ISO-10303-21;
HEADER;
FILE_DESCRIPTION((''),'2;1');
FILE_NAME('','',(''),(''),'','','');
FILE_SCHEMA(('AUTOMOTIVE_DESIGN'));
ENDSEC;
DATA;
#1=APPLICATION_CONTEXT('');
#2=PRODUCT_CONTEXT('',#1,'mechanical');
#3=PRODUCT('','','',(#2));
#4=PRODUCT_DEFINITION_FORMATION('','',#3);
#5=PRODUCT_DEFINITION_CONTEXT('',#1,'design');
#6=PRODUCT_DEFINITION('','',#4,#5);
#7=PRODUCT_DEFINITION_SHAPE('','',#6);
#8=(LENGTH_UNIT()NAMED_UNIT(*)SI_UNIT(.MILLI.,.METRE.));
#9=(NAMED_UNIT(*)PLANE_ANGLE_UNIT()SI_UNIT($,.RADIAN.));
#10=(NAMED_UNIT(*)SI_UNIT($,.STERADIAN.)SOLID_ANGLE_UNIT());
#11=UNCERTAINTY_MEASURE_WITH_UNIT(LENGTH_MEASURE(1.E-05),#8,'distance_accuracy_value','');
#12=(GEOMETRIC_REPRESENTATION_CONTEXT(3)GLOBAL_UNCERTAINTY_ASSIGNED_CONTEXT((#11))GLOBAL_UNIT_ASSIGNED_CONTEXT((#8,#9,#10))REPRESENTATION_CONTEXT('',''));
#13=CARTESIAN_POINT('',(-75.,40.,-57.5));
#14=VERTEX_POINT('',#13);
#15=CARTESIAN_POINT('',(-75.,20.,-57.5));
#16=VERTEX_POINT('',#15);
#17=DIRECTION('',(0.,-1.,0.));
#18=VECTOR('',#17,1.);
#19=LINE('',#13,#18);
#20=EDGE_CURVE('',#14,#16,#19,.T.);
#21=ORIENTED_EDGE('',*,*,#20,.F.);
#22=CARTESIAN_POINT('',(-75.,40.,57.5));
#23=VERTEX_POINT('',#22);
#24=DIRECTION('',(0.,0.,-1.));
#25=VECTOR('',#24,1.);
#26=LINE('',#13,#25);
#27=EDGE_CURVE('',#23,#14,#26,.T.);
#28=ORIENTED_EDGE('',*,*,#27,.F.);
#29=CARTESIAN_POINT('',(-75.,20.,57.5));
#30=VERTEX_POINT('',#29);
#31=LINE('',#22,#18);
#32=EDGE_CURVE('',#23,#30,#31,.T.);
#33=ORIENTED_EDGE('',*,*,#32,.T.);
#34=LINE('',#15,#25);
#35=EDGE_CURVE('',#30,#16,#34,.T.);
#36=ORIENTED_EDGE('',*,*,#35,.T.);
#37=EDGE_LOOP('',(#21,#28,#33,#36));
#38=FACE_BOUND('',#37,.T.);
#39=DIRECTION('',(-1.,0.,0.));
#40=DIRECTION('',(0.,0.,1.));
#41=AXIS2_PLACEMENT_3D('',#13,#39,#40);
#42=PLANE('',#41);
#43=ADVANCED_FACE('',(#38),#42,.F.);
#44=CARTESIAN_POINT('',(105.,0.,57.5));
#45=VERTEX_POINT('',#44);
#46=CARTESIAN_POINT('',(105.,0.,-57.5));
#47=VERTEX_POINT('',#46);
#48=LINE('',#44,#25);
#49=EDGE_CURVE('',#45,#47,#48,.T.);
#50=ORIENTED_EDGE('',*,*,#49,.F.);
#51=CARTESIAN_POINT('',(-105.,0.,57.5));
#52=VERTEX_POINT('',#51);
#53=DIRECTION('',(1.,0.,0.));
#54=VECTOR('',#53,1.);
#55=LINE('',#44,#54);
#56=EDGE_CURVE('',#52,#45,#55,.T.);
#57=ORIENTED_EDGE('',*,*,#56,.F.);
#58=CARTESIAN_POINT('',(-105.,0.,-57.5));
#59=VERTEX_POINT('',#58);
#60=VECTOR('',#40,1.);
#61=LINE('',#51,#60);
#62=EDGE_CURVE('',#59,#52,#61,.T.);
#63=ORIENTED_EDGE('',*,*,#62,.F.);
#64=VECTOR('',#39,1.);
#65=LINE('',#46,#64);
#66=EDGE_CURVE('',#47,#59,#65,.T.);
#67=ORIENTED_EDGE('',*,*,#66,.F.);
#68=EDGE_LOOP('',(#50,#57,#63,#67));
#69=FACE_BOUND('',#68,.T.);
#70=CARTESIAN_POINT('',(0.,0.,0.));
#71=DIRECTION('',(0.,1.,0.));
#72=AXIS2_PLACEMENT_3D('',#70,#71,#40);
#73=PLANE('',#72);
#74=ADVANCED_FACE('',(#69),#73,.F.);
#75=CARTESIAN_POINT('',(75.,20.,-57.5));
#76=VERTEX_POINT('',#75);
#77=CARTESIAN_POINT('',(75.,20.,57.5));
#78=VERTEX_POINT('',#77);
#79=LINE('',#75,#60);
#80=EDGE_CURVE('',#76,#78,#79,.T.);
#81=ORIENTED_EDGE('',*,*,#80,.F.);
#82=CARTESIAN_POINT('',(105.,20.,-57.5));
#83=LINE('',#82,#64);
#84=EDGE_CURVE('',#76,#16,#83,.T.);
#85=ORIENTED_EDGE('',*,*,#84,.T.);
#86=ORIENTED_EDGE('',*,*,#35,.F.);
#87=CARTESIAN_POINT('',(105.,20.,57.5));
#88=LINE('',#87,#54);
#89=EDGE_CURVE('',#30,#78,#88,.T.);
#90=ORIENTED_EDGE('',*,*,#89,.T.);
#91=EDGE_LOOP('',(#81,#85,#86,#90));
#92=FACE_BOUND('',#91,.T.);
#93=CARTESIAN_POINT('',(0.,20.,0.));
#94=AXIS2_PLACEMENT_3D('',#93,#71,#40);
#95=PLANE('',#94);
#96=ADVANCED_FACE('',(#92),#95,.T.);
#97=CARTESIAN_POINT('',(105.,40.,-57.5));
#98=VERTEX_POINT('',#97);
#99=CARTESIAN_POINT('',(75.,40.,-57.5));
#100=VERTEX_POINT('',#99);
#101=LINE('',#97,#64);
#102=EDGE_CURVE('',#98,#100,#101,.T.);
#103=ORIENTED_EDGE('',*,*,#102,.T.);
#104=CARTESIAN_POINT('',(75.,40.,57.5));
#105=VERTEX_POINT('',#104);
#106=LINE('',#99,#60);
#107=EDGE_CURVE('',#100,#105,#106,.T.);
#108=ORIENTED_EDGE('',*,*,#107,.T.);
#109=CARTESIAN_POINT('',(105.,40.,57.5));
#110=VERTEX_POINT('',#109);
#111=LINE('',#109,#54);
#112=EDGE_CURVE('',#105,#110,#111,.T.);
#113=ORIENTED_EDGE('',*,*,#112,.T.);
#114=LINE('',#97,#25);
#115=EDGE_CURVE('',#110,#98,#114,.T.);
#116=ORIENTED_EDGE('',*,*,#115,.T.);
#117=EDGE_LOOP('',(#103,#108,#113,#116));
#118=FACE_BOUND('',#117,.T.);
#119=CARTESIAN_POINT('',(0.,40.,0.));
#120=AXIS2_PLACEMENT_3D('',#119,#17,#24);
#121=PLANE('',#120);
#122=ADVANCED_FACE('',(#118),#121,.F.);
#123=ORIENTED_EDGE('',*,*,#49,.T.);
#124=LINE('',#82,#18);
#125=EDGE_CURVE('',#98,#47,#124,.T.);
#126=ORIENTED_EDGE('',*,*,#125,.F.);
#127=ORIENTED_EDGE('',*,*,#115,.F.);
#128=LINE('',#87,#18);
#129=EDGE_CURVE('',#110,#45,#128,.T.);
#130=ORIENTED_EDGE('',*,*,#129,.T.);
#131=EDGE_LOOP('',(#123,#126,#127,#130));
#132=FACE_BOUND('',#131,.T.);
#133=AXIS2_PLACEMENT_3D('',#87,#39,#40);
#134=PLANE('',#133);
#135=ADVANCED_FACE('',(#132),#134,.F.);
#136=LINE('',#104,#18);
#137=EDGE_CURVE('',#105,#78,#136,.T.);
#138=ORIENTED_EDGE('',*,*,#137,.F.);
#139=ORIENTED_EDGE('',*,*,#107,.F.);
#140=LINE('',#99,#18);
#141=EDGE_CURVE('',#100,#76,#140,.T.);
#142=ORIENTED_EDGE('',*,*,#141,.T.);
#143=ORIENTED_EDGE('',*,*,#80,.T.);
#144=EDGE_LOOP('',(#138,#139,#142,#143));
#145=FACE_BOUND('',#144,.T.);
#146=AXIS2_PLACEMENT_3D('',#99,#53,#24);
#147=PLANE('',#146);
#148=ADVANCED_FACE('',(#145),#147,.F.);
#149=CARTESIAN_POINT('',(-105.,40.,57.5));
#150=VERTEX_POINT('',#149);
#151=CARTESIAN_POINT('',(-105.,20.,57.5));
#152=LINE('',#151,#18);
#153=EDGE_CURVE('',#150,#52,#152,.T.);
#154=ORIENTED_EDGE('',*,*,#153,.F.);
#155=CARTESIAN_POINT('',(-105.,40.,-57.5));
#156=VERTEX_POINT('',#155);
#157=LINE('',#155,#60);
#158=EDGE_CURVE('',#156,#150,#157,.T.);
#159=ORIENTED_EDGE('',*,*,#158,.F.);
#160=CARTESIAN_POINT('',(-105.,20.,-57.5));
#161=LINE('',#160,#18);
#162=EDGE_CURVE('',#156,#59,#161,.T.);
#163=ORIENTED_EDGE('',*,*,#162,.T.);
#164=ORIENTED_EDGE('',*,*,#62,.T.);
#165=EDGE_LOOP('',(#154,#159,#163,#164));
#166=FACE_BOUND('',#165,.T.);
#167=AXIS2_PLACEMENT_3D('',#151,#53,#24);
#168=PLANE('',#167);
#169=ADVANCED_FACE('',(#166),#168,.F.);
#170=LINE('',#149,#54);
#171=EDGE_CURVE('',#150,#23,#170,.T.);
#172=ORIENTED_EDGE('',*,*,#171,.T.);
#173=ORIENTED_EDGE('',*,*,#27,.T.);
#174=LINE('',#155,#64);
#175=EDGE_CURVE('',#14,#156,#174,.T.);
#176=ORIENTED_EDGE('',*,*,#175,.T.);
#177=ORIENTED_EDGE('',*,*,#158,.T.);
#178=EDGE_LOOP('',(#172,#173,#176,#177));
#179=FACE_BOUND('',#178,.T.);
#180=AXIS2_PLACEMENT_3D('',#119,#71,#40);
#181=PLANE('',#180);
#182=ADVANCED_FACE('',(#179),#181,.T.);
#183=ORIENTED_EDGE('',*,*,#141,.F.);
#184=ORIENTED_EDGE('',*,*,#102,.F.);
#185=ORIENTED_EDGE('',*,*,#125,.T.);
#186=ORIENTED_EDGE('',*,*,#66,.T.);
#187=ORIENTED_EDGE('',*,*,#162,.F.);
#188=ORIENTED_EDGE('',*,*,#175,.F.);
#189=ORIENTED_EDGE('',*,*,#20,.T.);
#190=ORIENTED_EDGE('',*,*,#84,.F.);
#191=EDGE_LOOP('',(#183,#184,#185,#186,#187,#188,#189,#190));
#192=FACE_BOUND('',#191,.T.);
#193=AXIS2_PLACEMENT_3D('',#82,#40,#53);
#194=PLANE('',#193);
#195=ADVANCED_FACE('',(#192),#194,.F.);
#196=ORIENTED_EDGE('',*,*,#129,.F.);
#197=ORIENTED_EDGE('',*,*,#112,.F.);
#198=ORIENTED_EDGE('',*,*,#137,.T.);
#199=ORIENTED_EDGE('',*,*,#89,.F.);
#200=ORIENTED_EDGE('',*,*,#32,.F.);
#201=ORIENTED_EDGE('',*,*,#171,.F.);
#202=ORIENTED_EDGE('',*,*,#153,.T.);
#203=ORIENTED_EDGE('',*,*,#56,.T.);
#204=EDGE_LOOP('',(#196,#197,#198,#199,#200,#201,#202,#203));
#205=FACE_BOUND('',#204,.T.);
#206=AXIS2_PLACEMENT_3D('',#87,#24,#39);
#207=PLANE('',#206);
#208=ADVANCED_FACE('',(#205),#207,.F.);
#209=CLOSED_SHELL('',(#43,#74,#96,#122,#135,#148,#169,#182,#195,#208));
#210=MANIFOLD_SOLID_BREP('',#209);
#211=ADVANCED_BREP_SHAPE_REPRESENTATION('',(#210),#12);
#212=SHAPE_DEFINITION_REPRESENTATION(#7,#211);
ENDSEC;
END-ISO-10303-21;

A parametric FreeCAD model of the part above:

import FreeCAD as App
import Part
import Sketcher

V = App.Vector
Q = App.Units.Quantity


def add_polygon(sketch, points):
    """Adds a closed chain of lines whose ends are joined by coincident constraints."""
    first, n = sketch.GeometryCount, len(points)
    for a, b in zip(points, points[1:] + points[:1]):
        sketch.addGeometry(Part.LineSegment(App.Vector(*a, 0), App.Vector(*b, 0)), False)
    for i in range(n):
        sketch.addConstraint(Sketcher.Constraint("Coincident", first + i, 2, first + (i + 1) % n, 1))

doc = App.newDocument("Part")
body = doc.addObject("PartDesign::Body", "Body")

sketch1 = body.newObject("Sketcher::SketchObject", "Sketch")
sketch1.AttachmentSupport = (doc.getObject("XZ_Plane"), [""])
sketch1.MapMode = "FlatFace"
add_polygon(sketch1, [(-105, -57.5), (-105, 57.5), (105, 57.5), (105, -57.5)])
sketch1.addConstraint(Sketcher.Constraint("Vertical", 0))
sketch1.addConstraint(Sketcher.Constraint("Horizontal", 1))
sketch1.addConstraint(Sketcher.Constraint("Vertical", 2))
sketch1.addConstraint(Sketcher.Constraint("Horizontal", 3))
sketch1.addConstraint(Sketcher.Constraint("Symmetric", 0, 2, 2, 2, -1, 1))
sketch1.addConstraint(Sketcher.Constraint("DistanceX", 1, 1, 1, 2, Q("210 mm")))
sketch1.addConstraint(Sketcher.Constraint("DistanceY", 0, 1, 0, 2, Q("115 mm")))
pad1 = body.newObject("PartDesign::Pad", "Pad")
pad1.Profile = sketch1
pad1.Length = 20
pad1.Reversed = True

sketch2 = body.newObject("Sketcher::SketchObject", "Sketch001")
sketch2.AttachmentSupport = (doc.getObject("XZ_Plane"), [""])
sketch2.MapMode = "FlatFace"
sketch2.AttachmentOffset = App.Placement(V(0, 0, -20), App.Rotation())
add_polygon(sketch2, [(-105, -57.5), (-105, 57.5), (-75, 57.5), (-75, -57.5)])
add_polygon(sketch2, [(75, -57.5), (75, 57.5), (105, 57.5), (105, -57.5)])
sketch2.addConstraint(Sketcher.Constraint("Vertical", 0))
sketch2.addConstraint(Sketcher.Constraint("Horizontal", 1))
sketch2.addConstraint(Sketcher.Constraint("Vertical", 2))
sketch2.addConstraint(Sketcher.Constraint("Horizontal", 3))
sketch2.addConstraint(Sketcher.Constraint("Vertical", 4))
sketch2.addConstraint(Sketcher.Constraint("Horizontal", 5))
sketch2.addConstraint(Sketcher.Constraint("Vertical", 6))
sketch2.addConstraint(Sketcher.Constraint("Horizontal", 7))
sketch2.addConstraint(Sketcher.Constraint("Symmetric", 2, 2, 4, 2, -1, 1))
sketch2.addConstraint(Sketcher.Constraint("Symmetric", 0, 2, 6, 2, -1, 1))
sketch2.addConstraint(Sketcher.Constraint("Horizontal", 1, 2, 4, 2))
sketch2.addConstraint(Sketcher.Constraint("DistanceX", 1, 1, 1, 2, Q("30 mm")))
sketch2.addConstraint(Sketcher.Constraint("DistanceY", 0, 1, 0, 2, Q("115 mm")))
sketch2.addConstraint(Sketcher.Constraint("DistanceX", 0, 2, -1, 1, Q("105 mm")))
pad2 = body.newObject("PartDesign::Pad", "Pad001")
pad2.Profile = sketch2
pad2.Length = 20
pad2.Reversed = True

doc.recompute()
